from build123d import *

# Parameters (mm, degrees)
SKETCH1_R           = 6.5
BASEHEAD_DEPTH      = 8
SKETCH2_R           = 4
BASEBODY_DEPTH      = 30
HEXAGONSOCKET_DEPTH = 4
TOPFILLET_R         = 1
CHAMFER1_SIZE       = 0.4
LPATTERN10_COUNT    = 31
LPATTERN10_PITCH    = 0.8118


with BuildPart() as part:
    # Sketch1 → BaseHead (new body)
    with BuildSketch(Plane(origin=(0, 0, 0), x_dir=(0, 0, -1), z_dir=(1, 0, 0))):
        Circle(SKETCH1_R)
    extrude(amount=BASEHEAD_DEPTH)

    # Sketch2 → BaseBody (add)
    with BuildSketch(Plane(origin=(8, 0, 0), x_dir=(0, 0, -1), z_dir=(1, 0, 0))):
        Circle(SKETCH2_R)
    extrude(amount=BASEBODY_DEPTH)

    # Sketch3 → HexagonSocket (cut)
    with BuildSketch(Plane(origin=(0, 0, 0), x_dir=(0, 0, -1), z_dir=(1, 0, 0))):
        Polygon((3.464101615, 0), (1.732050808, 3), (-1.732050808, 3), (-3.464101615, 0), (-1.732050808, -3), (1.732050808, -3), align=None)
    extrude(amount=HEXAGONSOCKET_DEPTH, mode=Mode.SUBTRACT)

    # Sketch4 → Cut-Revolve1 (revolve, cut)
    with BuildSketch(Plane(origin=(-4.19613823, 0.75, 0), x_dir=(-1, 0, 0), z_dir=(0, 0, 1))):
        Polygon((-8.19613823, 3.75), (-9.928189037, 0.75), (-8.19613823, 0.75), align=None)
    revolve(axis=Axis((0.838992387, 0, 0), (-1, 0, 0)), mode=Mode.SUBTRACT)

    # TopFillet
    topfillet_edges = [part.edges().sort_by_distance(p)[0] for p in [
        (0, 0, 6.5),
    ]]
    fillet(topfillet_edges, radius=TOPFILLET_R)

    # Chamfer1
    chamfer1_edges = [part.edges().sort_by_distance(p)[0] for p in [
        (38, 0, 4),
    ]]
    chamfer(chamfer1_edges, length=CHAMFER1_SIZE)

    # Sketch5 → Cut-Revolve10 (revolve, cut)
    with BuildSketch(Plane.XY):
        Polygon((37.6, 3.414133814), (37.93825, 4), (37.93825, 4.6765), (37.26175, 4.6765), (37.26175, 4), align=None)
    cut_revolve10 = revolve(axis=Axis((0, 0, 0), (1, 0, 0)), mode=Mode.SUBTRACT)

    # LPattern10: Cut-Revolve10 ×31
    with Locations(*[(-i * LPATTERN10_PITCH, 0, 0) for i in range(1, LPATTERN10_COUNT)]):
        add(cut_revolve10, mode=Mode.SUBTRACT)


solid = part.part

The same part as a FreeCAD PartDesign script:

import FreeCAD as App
import Part
import Sketcher
Q = App.Units.Quantity


def edges_at(feature, points):
    """Names of the edges that pass closest to the given points."""
    edges = feature.Shape.Edges
    near = lambda p: min(range(len(edges)), key=lambda i: edges[i].distToShape(Part.Vertex(*p))[0])
    return sorted({f"Edge{near(p) + 1}" for p in points})


def add_polygon(sketch, points):
    """Adds a closed chain of lines whose ends are joined by coincident constraints."""
    first, n = sketch.GeometryCount, len(points)
    for a, b in zip(points, points[1:] + points[:1]):
        sketch.addGeometry(Part.LineSegment(App.Vector(*a, 0), App.Vector(*b, 0)), False)
    for i in range(n):
        sketch.addConstraint(Sketcher.Constraint("Coincident", first + i, 2, first + (i + 1) % n, 1))

doc = App.newDocument("Part")
body = doc.addObject("PartDesign::Body", "Body")

# Sketch on YZ plane
sketch1 = body.newObject("Sketcher::SketchObject", "Sketch")
sketch1.AttachmentSupport = (doc.getObject("YZ_Plane"), [""])
sketch1.MapMode = "FlatFace"
sketch1.addGeometry(Part.Circle(App.Vector(0, 0, 0), App.Vector(0, 0, 1), 6), False)
sketch1.addConstraint(Sketcher.Constraint("Coincident", 0, 3, -1, 1))
sketch1.addConstraint(Sketcher.Constraint("Diameter", 0, Q("13 mm")))
pad1 = body.newObject("PartDesign::Pad", "Pad")
pad1.Profile = sketch1
pad1.Length = 8

# Sketch on YZ plane
sketch2 = body.newObject("Sketcher::SketchObject", "Sketch001")
sketch2.AttachmentSupport = (doc.getObject("YZ_Plane"), [""])
sketch2.MapMode = "FlatFace"
sketch2.AttachmentOffset = App.Placement(App.Vector(0, 0, 8), App.Rotation())
sketch2.addGeometry(Part.Circle(App.Vector(0, 0, 0), App.Vector(0, 0, 1), 4), False)
sketch2.addConstraint(Sketcher.Constraint("Coincident", 0, 3, -1, 1))
sketch2.addConstraint(Sketcher.Constraint("Diameter", 0, Q("8 mm")))
pad2 = body.newObject("PartDesign::Pad", "Pad001")
pad2.Profile = sketch2
pad2.Length = 30

# Sketch on YZ plane
sketch3 = body.newObject("Sketcher::SketchObject", "Sketch002")
sketch3.AttachmentSupport = (doc.getObject("YZ_Plane"), [""])
sketch3.MapMode = "FlatFace"
add_polygon(sketch3, [(0, -3.5), (3, -1.7), (3, 1.7), (0, 3.5), (-3, 1.7), (-3, -1.7)])  # lines 0-5
sketch3.addConstraint(Sketcher.Constraint("Vertical", 1))
sketch3.addConstraint(Sketcher.Constraint("Vertical", 4))
sketch3.addConstraint(Sketcher.Constraint("Symmetric", 0, 2, 3, 2, -1, 1))
sketch3.addConstraint(Sketcher.Constraint("Symmetric", 2, 2, 5, 2, -1, 1))
sketch3.addConstraint(Sketcher.Constraint("PointOnObject", 2, 2, -2))
sketch3.addConstraint(Sketcher.Constraint("Parallel", 2, 5))
sketch3.addConstraint(Sketcher.Constraint("Horizontal", 1, 2, 3, 2))
sketch3.addConstraint(Sketcher.Constraint("Angle", 0, Q("30 deg")))
sketch3.addConstraint(Sketcher.Constraint("DistanceX", -1, 1, 0, 2, Q("3 mm")))
sketch3.addConstraint(Sketcher.Constraint("DistanceY", 1, 1, 1, 2, Q("3.464102 mm")))
pocket1 = body.newObject("PartDesign::Pocket", "Pocket")
pocket1.Profile = sketch3
pocket1.Length = 4
pocket1.Reversed = True

# Sketch on XY plane
sketch4 = body.newObject("Sketcher::SketchObject", "Sketch003")
sketch4.AttachmentSupport = (doc.getObject("XY_Plane"), [""])
sketch4.MapMode = "FlatFace"
add_polygon(sketch4, [(4, -3), (5.7, 0), (4, 0)])  # lines 0-2
sketch4.addConstraint(Sketcher.Constraint("Horizontal", 1))
sketch4.addConstraint(Sketcher.Constraint("Vertical", 2))
sketch4.addConstraint(Sketcher.Constraint("PointOnObject", 0, 2, -1))
sketch4.addConstraint(Sketcher.Constraint("DistanceY", 2, 2, 2, 1, Q("3 mm")))
sketch4.addConstraint(Sketcher.Constraint("Angle", 0, Q("60 deg")))
sketch4.addConstraint(Sketcher.Constraint("DistanceX", -1, 1, 1, 2, Q("4 mm")))
groove = body.newObject("PartDesign::Groove", "Groove")
groove.Profile = sketch4
groove.ReferenceAxis = (sketch4, ["H_Axis"])
groove.Angle = 360
doc.recompute()

fillet = body.newObject("PartDesign::Fillet", "Fillet")
fillet.Base = (groove, edges_at(groove, [(0, 0, 6.5)]))
fillet.Radius = 1
doc.recompute()

chamfer = body.newObject("PartDesign::Chamfer", "Chamfer")
chamfer.Base = (fillet, edges_at(fillet, [(38, 0, 4)]))
chamfer.Size = 0.4

# Sketch on XY plane
sketch5 = body.newObject("Sketcher::SketchObject", "Sketch004")
sketch5.AttachmentSupport = (doc.getObject("XY_Plane"), [""])
sketch5.MapMode = "FlatFace"
add_polygon(sketch5, [(37.6, 3.4), (37.9, 4), (37.9, 4.7), (37.3, 4.7), (37.3, 4)])  # lines 0-4
sketch5.addConstraint(Sketcher.Constraint("Vertical", 1))
sketch5.addConstraint(Sketcher.Constraint("Horizontal", 2))
sketch5.addConstraint(Sketcher.Constraint("Vertical", 3))
sketch5.addConstraint(Sketcher.Constraint("Horizontal", 0, 2, 3, 2))
sketch5.addConstraint(Sketcher.Constraint("Equal", 2, 1))
sketch5.addConstraint(Sketcher.Constraint("Equal", 0, 4))
sketch5.addConstraint(Sketcher.Constraint("Angle", 0, Q("60 deg")))
sketch5.addConstraint(Sketcher.Constraint("DistanceY", -1, 1, 0, 2, Q("4 mm")))
sketch5.addConstraint(Sketcher.Constraint("DistanceX", -1, 1, 4, 2, Q("37.6 mm")))
sketch5.addConstraint(Sketcher.Constraint("DistanceX", 2, 2, 2, 1, Q("0.6765 mm")))
groove2 = body.newObject("PartDesign::Groove", "Groove001")
groove2.Profile = sketch5
groove2.ReferenceAxis = (sketch5, ["H_Axis"])
groove2.Angle = 360
doc.recompute()

linearpattern = body.newObject("PartDesign::LinearPattern", "LinearPattern")
linearpattern.Originals = [groove2]
linearpattern.Direction = (doc.getObject("X_Axis"), [""])
linearpattern.Mode = "offset"
linearpattern.Offset = 0.8118
linearpattern.Occurrences = 31
linearpattern.Reversed = True
body.Tip = linearpattern

doc.recompute()
